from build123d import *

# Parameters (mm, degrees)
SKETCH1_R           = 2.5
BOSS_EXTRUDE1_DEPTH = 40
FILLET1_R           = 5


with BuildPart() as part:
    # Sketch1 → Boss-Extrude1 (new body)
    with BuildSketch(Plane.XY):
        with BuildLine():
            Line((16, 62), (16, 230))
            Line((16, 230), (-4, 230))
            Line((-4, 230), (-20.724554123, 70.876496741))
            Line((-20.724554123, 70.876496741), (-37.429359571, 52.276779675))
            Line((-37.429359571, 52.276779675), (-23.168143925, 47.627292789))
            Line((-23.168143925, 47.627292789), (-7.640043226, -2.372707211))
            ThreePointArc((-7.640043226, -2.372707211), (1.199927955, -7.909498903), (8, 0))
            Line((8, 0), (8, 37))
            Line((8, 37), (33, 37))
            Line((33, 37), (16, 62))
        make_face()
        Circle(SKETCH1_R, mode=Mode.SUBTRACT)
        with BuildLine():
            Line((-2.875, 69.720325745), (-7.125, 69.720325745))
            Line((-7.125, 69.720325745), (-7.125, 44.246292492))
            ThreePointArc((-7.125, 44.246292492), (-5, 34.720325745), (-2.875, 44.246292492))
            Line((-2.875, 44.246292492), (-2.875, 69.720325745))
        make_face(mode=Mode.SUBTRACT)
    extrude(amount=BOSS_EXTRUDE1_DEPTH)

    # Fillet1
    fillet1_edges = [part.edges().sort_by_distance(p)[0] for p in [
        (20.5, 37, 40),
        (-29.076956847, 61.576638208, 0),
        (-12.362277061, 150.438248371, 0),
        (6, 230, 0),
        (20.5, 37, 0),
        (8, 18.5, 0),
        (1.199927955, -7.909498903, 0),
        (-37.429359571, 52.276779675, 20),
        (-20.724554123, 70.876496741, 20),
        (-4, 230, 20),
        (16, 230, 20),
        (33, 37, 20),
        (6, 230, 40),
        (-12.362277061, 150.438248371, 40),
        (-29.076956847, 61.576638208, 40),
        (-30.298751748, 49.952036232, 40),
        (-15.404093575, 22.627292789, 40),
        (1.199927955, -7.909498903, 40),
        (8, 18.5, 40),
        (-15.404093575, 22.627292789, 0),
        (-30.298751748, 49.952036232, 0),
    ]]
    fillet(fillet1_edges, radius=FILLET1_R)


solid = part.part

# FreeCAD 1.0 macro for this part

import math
import FreeCAD as App
import Part
import Sketcher
Q = App.Units.Quantity


def edges_at(feature, points):
    """Names of the edges that pass closest to the given points."""
    edges = feature.Shape.Edges
    near = lambda p: min(range(len(edges)), key=lambda i: edges[i].distToShape(Part.Vertex(*p))[0])
    return sorted({f"Edge{near(p) + 1}" for p in points})

doc = App.newDocument("Part")
body = doc.addObject("PartDesign::Body", "Body")

# Sketch on XY plane
sketch1 = body.newObject("Sketcher::SketchObject", "Sketch")
sketch1.AttachmentSupport = (doc.getObject("XY_Plane"), [""])
sketch1.MapMode = "FlatFace"
sketch1.addGeometry(Part.LineSegment(App.Vector(16, 62, 0), App.Vector(16, 230, 0)), False)
sketch1.addGeometry(Part.LineSegment(App.Vector(16, 230, 0), App.Vector(-4, 230, 0)), False)
sketch1.addGeometry(Part.LineSegment(App.Vector(-4, 230, 0), App.Vector(-20.7, 70.9, 0)), False)
sketch1.addGeometry(Part.LineSegment(App.Vector(-20.7, 70.9, 0), App.Vector(-37.4, 52.3, 0)), False)
sketch1.addGeometry(Part.LineSegment(App.Vector(-37.4, 52.3, 0), App.Vector(-23.2, 47.6, 0)), False)
sketch1.addGeometry(Part.LineSegment(App.Vector(-23.2, 47.6, 0), App.Vector(-7.6, -2.4, 0)), False)
sketch1.addGeometry(Part.ArcOfCircle(Part.Circle(App.Vector(0, 0, 0), App.Vector(0, 0, 1), 8), math.radians(-163), math.radians(0)), False)
sketch1.addGeometry(Part.LineSegment(App.Vector(8, 0, 0), App.Vector(8, 37, 0)), False)
sketch1.addGeometry(Part.LineSegment(App.Vector(8, 37, 0), App.Vector(33, 37, 0)), False)
sketch1.addGeometry(Part.LineSegment(App.Vector(33, 37, 0), App.Vector(16, 62, 0)), False)
sketch1.addGeometry(Part.Circle(App.Vector(0, 0, 0), App.Vector(0, 0, 1), 2.5), False)
sketch1.addGeometry(Part.LineSegment(App.Vector(-7.1, 69.7, 0), App.Vector(-2.9, 69.7, 0)), False)
sketch1.addGeometry(Part.LineSegment(App.Vector(-2.9, 69.7, 0), App.Vector(-2.9, 44.2, 0)), False)
sketch1.addGeometry(Part.ArcOfCircle(Part.Circle(App.Vector(-5, 39.7, 0), App.Vector(0, 0, 1), 5), math.radians(115), math.radians(425)), False)
sketch1.addGeometry(Part.LineSegment(App.Vector(-7.1, 44.2, 0), App.Vector(-7.1, 69.7, 0)), False)
sketch1.addConstraint(Sketcher.Constraint("Coincident", 0, 2, 1, 1))
sketch1.addConstraint(Sketcher.Constraint("Coincident", 1, 2, 2, 1))
sketch1.addConstraint(Sketcher.Constraint("Coincident", 2, 2, 3, 1))
sketch1.addConstraint(Sketcher.Constraint("Coincident", 3, 2, 4, 1))
sketch1.addConstraint(Sketcher.Constraint("Coincident", 4, 2, 5, 1))
sketch1.addConstraint(Sketcher.Constraint("Tangent", 5, 2, 6, 1))
sketch1.addConstraint(Sketcher.Constraint("Tangent", 6, 2, 7, 1))
sketch1.addConstraint(Sketcher.Constraint("Coincident", 7, 2, 8, 1))
sketch1.addConstraint(Sketcher.Constraint("Coincident", 8, 2, 9, 1))
sketch1.addConstraint(Sketcher.Constraint("Coincident", 9, 2, 0, 1))
sketch1.addConstraint(Sketcher.Constraint("Coincident", 11, 2, 12, 1))
sketch1.addConstraint(Sketcher.Constraint("Coincident", 12, 2, 13, 2))
sketch1.addConstraint(Sketcher.Constraint("Coincident", 13, 1, 14, 1))
sketch1.addConstraint(Sketcher.Constraint("Coincident", 14, 2, 11, 1))
sketch1.addConstraint(Sketcher.Constraint("Vertical", 0))
sketch1.addConstraint(Sketcher.Constraint("Horizontal", 1))
sketch1.addConstraint(Sketcher.Constraint("Vertical", 7))
sketch1.addConstraint(Sketcher.Constraint("Horizontal", 8))
sketch1.addConstraint(Sketcher.Constraint("Horizontal", 11))
sketch1.addConstraint(Sketcher.Constraint("Vertical", 12))
sketch1.addConstraint(Sketcher.Constraint("Vertical", 14))
sketch1.addConstraint(Sketcher.Constraint("Coincident", 6, 3, -1, 1))
sketch1.addConstraint(Sketcher.Constraint("Coincident", 10, 3, -1, 1))
sketch1.addConstraint(Sketcher.Constraint("Horizontal", 12, 2, 13, 1))
sketch1.addConstraint(Sketcher.Constraint("Diameter", 10, 5.0))
sketch1.addConstraint(Sketcher.Constraint("Radius", 6, 8.0))
sketch1.addConstraint(Sketcher.Constraint("Radius", 13, 5.0))
sketch1.addConstraint(Sketcher.Constraint("DistanceX", 1, 2, 1, 1, 20.0))
sketch1.addConstraint(Sketcher.Constraint("DistanceX", 8, 1, 8, 2, 25.0))
sketch1.addConstraint(Sketcher.Constraint("DistanceY", 0, 1, 0, 2, 168.0))
sketch1.addConstraint(Sketcher.Constraint("DistanceY", 7, 1, 7, 2, 37.0))
sketch1.addConstraint(Sketcher.Constraint("Angle", 2, Q("-96 deg")))
sketch1.addConstraint(Sketcher.Constraint("Distance", 2, 160.0))
sketch1.addConstraint(Sketcher.Constraint("Distance", 3, 25.0))
sketch1.addConstraint(Sketcher.Constraint("Distance", 4, 15.0))
sketch1.addConstraint(Sketcher.Constraint("DistanceX", 13, 3, -1, 1, 5.0))
sketch1.addConstraint(Sketcher.Constraint("DistanceX", -1, 1, 0, 2, 16.0))
sketch1.addConstraint(Sketcher.Constraint("DistanceY", -1, 1, 0, 2, 230.0))
sketch1.addConstraint(Sketcher.Constraint("DistanceY", 5, 2, 4, 2, 50.0))
sketch1.addConstraint(Sketcher.Constraint("DistanceY", 13, 3, 11, 2, 30.0))
sketch1.addConstraint(Sketcher.Constraint("DistanceX", 11, 1, 11, 2, 4.25))
sketch1.addConstraint(Sketcher.Constraint("DistanceY", 12, 2, 4, 2, 3.381))
sketch1.addConstraint(Sketcher.Constraint("DistanceX", 4, 2, 5, 2, 15.528101))
pad1 = body.newObject("PartDesign::Pad", "Pad")
pad1.Profile = sketch1
pad1.Length = 40
doc.recompute()

fillet = body.newObject("PartDesign::Fillet", "Fillet")
fillet.Base = (pad1, edges_at(pad1, [
    (20.5, 37, 40),
    (-29.077, 61.577, 0),
    (-12.362, 150.438, 0),
    (6, 230, 0),
    (20.5, 37, 0),
    (8, 18.5, 0),
    (1.2, -7.909, 0),
    (-37.429, 52.277, 20),
    (-20.725, 70.876, 20),
    (-4, 230, 20),
    (16, 230, 20),
    (33, 37, 20),
    (6, 230, 40),
    (-12.362, 150.438, 40),
    (-29.077, 61.577, 40),
    (-30.299, 49.952, 40),
    (-15.404, 22.627, 40),
    (1.2, -7.909, 40),
    (8, 18.5, 40),
    (-15.404, 22.627, 0),
    (-30.299, 49.952, 0),
]))
fillet.Radius = 5

doc.recompute()
